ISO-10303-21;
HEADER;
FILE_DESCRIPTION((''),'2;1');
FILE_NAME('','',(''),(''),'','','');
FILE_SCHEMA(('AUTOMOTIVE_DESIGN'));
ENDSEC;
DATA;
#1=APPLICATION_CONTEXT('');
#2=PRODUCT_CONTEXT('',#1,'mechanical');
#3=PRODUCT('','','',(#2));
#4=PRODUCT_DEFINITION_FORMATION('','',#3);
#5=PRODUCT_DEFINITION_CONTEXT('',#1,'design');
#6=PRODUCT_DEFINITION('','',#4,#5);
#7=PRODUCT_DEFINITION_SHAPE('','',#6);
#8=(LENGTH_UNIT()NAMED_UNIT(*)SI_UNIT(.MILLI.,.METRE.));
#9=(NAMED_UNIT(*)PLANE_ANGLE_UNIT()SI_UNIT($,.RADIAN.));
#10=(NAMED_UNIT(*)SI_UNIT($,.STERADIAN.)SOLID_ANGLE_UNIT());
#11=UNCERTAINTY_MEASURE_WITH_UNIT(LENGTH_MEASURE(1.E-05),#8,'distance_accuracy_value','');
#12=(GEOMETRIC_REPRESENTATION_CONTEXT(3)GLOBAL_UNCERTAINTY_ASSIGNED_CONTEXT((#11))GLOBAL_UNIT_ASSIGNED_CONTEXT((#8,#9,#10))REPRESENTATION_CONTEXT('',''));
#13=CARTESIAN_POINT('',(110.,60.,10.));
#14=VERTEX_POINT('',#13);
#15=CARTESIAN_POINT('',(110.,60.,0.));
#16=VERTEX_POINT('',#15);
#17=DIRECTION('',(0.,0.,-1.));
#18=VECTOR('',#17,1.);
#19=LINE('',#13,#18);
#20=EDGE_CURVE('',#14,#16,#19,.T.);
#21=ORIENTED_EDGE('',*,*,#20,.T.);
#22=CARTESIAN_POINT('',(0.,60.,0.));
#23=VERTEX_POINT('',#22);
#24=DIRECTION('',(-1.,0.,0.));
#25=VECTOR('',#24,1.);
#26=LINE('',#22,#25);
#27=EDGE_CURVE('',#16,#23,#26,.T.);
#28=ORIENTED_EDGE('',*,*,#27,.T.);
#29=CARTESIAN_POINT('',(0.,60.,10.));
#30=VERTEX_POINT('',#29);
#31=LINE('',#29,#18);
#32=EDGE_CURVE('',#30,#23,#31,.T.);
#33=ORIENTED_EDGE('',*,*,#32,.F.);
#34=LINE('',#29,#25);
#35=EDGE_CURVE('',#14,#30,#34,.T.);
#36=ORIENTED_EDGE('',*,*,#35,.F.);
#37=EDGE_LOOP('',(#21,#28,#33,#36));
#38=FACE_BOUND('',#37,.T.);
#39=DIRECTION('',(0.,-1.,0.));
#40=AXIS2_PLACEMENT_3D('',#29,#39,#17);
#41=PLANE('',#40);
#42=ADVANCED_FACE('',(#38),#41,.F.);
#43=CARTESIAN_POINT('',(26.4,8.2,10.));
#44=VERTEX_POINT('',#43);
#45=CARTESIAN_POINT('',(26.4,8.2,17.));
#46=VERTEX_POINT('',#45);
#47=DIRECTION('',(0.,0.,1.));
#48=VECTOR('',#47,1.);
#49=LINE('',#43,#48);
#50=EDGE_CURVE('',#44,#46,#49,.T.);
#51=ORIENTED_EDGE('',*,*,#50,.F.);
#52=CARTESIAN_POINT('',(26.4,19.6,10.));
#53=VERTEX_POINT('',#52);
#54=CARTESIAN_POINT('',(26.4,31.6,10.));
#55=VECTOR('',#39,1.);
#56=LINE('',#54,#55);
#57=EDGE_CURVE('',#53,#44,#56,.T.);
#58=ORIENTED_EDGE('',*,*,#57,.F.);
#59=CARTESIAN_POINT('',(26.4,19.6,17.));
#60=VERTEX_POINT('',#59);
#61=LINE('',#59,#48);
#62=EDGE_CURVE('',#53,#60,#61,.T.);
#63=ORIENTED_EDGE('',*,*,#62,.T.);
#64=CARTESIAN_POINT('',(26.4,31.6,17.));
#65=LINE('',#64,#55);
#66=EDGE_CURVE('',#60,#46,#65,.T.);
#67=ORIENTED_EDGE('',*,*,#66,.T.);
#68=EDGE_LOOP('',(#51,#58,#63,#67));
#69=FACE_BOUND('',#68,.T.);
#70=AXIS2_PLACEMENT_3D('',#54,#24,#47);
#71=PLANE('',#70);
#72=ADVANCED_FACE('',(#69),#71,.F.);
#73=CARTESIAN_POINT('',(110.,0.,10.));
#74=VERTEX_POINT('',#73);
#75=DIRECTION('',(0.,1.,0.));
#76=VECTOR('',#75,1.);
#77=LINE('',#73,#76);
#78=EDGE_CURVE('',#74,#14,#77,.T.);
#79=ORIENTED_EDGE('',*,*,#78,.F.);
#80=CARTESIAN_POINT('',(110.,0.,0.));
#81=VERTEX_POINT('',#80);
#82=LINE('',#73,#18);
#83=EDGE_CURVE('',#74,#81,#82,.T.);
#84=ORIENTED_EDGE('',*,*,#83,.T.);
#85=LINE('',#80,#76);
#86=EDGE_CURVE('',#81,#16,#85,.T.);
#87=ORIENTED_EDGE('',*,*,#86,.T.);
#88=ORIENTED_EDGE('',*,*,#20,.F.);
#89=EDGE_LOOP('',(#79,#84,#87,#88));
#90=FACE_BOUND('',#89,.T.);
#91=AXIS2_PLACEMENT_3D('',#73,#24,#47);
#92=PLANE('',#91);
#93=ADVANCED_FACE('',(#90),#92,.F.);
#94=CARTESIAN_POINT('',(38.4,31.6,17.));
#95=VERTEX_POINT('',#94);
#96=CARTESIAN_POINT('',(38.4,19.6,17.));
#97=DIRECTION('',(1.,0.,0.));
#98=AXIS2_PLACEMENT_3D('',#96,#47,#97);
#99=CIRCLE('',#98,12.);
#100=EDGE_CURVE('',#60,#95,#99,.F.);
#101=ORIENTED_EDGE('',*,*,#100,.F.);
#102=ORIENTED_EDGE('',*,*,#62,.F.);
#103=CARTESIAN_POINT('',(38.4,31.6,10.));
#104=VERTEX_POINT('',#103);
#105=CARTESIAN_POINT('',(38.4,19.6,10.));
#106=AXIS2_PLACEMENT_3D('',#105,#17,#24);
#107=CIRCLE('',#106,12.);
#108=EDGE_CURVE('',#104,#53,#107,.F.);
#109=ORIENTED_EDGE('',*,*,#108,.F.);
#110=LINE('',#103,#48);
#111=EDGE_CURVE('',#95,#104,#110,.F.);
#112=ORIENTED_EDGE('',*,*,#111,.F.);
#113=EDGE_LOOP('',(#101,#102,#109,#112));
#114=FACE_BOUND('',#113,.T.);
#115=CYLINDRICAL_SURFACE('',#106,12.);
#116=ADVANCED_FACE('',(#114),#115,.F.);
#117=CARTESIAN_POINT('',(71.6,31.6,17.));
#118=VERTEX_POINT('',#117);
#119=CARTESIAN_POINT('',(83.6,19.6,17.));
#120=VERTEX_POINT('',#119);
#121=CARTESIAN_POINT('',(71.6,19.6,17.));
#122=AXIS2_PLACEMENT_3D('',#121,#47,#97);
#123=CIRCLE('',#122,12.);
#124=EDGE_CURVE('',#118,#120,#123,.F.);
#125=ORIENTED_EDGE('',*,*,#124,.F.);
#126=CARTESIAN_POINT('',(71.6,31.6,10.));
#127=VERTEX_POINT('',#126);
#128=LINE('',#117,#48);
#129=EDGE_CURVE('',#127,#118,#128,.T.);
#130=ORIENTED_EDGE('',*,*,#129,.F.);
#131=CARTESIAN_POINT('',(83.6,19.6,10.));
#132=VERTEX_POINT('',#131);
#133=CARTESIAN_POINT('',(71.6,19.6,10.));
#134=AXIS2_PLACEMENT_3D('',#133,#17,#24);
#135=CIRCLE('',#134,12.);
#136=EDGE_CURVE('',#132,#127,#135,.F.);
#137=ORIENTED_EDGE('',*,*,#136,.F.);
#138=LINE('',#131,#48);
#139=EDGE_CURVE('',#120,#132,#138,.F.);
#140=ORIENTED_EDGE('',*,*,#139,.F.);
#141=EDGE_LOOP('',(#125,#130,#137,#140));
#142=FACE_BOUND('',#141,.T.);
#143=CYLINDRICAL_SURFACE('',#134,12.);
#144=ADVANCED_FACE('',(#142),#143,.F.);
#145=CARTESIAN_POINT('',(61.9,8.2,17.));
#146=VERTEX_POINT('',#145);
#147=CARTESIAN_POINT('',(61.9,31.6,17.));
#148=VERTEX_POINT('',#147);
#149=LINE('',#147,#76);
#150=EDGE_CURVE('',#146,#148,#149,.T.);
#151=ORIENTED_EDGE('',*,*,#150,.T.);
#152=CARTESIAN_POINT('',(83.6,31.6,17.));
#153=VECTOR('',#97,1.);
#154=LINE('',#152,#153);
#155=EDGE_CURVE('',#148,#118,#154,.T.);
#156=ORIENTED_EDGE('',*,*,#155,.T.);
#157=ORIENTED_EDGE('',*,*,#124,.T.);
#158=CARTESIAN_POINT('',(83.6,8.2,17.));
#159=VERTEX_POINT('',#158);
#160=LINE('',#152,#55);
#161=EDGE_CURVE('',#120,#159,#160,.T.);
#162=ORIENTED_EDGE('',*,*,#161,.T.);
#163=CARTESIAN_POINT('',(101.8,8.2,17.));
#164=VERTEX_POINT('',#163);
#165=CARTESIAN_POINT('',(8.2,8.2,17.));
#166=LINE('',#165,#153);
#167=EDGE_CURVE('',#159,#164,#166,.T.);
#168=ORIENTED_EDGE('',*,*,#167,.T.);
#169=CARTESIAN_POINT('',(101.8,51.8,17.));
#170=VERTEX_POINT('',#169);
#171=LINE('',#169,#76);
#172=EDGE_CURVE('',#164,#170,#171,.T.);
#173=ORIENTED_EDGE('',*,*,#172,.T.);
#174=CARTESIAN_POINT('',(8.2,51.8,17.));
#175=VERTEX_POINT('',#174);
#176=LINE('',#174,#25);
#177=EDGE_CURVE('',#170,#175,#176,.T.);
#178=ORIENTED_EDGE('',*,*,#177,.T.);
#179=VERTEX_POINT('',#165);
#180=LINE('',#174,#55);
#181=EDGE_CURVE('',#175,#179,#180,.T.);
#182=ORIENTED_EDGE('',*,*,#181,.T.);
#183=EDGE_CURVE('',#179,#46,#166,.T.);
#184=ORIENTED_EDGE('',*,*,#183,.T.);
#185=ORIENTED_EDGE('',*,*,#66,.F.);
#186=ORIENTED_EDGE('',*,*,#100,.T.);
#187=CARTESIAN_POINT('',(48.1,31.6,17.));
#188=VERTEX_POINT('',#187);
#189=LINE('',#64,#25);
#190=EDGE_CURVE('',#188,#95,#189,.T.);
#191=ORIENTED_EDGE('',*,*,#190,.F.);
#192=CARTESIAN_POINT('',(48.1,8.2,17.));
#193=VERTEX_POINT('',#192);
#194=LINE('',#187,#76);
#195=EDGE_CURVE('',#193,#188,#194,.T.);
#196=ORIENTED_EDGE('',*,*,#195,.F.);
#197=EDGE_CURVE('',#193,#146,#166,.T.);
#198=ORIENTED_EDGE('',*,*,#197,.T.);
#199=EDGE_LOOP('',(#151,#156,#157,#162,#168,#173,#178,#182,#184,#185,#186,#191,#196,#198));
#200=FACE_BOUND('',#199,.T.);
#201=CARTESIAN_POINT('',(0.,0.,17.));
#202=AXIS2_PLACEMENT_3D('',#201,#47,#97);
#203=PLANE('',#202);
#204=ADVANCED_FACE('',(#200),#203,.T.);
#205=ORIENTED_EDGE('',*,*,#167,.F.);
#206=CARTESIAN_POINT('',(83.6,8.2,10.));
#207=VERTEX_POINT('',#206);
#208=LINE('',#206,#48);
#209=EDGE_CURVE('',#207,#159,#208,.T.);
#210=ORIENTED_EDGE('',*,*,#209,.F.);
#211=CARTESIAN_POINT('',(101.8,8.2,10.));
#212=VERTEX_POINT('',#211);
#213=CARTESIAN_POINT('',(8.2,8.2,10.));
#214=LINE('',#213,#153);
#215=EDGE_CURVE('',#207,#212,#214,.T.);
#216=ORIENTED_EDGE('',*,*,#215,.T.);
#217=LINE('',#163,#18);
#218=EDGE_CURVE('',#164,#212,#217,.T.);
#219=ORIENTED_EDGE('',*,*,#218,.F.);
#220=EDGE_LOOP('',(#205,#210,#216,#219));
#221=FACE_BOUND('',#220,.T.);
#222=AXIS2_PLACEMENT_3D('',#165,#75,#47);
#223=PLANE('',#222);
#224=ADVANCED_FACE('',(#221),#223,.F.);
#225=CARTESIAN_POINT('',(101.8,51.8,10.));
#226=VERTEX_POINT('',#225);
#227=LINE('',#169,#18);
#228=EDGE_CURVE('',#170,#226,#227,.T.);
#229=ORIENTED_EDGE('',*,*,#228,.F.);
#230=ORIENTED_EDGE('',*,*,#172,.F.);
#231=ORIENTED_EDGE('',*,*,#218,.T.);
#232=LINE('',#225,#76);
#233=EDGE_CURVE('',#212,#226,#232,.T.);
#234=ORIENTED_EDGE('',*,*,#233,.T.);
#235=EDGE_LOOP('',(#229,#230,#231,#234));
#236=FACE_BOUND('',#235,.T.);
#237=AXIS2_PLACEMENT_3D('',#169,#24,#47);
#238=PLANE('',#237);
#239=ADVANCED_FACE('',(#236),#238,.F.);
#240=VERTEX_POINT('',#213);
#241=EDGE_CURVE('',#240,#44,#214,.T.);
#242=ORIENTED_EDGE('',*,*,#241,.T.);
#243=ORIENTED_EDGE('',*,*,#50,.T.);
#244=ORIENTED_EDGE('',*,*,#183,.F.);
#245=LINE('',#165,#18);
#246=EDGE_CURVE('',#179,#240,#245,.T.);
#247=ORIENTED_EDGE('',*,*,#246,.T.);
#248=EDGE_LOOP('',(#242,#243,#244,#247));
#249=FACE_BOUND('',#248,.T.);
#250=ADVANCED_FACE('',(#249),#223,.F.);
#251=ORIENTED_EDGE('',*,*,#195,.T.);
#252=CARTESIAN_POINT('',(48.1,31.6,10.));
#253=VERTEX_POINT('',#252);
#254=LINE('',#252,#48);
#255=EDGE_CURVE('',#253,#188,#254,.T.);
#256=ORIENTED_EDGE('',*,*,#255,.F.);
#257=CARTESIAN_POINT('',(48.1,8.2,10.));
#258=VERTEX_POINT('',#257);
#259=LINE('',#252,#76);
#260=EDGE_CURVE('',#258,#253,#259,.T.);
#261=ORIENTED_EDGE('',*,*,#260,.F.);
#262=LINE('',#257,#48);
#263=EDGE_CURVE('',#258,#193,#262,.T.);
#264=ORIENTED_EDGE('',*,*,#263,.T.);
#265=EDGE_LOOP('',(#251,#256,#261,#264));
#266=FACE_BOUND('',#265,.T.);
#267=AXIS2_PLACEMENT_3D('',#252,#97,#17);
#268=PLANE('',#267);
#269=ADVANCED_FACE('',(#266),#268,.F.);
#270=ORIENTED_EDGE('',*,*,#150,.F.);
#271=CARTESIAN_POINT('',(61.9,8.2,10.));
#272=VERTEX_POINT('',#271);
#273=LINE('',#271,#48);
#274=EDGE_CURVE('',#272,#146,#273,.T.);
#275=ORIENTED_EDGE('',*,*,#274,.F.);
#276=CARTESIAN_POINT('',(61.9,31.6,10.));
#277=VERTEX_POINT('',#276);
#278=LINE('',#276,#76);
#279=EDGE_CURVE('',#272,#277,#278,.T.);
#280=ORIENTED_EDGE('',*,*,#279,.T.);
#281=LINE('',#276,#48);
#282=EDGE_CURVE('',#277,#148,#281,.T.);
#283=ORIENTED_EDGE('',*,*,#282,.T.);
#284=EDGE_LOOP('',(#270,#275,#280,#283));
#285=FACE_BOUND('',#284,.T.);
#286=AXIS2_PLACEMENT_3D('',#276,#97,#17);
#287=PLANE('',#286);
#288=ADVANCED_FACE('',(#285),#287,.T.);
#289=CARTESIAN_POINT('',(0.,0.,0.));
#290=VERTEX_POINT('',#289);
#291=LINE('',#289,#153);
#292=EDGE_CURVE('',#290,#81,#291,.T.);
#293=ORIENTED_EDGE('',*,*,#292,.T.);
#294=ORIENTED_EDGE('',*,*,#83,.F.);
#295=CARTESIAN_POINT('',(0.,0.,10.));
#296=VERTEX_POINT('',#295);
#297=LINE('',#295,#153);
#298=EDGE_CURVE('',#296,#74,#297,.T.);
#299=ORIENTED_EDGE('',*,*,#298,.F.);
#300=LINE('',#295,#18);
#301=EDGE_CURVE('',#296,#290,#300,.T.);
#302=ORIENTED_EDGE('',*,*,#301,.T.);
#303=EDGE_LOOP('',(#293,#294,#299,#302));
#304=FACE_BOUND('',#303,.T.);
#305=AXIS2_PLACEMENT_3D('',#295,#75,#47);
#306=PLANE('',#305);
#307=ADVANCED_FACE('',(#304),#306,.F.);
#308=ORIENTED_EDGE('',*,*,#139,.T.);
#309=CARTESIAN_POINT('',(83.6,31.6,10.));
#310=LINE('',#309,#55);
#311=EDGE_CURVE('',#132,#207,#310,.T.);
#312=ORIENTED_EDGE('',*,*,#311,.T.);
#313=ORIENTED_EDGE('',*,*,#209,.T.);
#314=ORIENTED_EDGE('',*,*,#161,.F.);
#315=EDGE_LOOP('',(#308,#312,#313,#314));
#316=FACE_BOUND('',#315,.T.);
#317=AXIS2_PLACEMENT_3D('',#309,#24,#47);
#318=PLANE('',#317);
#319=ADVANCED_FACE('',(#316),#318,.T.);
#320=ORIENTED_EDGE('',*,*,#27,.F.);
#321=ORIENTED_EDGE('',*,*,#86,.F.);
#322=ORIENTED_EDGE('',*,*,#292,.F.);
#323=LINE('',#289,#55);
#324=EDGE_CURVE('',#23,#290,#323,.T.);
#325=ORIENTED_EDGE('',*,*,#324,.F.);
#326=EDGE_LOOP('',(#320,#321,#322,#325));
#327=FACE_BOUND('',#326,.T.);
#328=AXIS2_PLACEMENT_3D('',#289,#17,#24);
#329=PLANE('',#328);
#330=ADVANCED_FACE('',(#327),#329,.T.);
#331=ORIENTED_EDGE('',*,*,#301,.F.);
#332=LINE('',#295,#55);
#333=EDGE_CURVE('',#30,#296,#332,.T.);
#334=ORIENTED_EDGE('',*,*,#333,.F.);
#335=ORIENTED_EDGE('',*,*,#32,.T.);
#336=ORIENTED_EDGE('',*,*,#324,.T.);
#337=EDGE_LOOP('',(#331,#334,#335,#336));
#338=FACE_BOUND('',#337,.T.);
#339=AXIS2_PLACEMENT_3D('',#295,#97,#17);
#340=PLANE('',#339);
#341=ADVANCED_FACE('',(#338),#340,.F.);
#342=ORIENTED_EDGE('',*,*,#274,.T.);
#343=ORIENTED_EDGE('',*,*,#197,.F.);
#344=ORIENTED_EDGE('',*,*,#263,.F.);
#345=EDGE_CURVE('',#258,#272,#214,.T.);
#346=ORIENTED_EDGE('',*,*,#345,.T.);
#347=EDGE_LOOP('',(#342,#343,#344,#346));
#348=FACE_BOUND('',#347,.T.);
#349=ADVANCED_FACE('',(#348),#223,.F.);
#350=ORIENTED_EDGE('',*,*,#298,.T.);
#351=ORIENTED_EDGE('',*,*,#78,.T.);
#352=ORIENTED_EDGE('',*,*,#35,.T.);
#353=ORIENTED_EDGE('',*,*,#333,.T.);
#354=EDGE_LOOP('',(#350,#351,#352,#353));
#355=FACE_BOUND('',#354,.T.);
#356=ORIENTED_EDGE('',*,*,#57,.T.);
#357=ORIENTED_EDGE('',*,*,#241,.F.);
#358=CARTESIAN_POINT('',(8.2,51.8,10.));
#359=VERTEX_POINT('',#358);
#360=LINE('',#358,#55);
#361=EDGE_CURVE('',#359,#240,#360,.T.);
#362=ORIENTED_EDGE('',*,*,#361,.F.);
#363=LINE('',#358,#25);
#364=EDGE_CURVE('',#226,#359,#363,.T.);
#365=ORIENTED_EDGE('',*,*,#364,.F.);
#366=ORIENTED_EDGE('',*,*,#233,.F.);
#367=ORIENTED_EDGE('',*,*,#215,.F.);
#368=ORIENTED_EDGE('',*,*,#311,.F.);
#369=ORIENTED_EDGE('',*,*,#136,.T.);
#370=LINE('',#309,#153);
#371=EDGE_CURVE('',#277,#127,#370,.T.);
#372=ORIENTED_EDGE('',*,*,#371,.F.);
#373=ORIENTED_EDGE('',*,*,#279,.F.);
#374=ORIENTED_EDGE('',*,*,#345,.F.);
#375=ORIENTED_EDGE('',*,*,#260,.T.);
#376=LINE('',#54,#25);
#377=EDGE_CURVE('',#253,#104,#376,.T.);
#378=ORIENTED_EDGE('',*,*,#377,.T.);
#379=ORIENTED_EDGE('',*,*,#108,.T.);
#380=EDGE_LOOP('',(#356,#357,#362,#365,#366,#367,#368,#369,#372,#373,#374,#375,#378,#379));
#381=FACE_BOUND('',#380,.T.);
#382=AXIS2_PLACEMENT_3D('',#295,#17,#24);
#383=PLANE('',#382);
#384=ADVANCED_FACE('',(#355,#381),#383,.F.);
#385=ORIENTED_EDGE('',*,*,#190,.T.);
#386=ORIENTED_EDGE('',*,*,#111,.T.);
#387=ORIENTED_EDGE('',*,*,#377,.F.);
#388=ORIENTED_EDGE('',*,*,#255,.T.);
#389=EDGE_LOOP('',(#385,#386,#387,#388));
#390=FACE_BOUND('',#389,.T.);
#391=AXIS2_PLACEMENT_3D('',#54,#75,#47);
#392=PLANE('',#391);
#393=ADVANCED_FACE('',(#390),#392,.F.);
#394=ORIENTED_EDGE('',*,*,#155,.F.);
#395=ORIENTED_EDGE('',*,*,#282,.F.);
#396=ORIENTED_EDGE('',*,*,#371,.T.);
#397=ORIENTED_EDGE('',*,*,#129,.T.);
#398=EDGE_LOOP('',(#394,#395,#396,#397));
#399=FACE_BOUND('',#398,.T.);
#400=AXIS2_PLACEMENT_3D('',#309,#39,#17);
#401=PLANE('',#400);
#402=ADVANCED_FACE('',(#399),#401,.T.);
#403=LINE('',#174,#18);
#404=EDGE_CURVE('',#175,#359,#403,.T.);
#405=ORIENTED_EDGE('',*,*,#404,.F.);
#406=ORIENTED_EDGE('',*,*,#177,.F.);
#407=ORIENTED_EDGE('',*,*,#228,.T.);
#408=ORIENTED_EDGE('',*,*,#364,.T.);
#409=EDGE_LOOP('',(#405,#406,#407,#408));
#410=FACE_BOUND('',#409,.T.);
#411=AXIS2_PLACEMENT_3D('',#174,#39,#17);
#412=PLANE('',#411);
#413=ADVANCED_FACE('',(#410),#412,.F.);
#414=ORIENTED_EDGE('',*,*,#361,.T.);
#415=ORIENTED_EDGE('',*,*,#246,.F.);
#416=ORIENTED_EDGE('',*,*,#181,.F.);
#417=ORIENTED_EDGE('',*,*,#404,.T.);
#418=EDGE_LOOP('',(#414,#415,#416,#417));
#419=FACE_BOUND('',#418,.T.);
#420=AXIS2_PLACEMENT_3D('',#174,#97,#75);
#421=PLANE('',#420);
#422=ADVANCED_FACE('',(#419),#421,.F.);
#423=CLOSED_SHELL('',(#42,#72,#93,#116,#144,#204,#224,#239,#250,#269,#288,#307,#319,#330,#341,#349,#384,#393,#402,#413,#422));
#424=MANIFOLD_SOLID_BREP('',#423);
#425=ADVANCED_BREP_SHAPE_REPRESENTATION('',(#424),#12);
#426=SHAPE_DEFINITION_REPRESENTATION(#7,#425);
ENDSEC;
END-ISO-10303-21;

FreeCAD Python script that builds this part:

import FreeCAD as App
import Part
import Sketcher
from FreeCAD import Vector
Q = App.Units.Quantity


def edges_at(feature, points):
    """Names of the edges that pass closest to the given points."""
    edges = feature.Shape.Edges
    near = lambda p: min(range(len(edges)), key=lambda i: edges[i].distToShape(Part.Vertex(*p))[0])
    return sorted({f"Edge{near(p) + 1}" for p in points})


def add_polygon(sketch, points):
    """Adds a closed chain of lines whose ends are joined by coincident constraints."""
    first, n = sketch.GeometryCount, len(points)
    for a, b in zip(points, points[1:] + points[:1]):
        sketch.addGeometry(Part.LineSegment(App.Vector(*a, 0), App.Vector(*b, 0)), False)
    for i in range(n):
        sketch.addConstraint(Sketcher.Constraint("Coincident", first + i, 2, first + (i + 1) % n, 1))

doc = App.newDocument("Part")
body = doc.addObject("PartDesign::Body", "Body")

# Sketch on XY plane
sketch1 = body.newObject("Sketcher::SketchObject", "Sketch")
sketch1.AttachmentSupport = (doc.getObject("XY_Plane"), [""])
sketch1.MapMode = "FlatFace"
add_polygon(sketch1, [(0, 60), (0, 0), (110, 0), (110, 60)])  # lines 0-3
sketch1.addConstraint([
    Sketcher.Constraint("Vertical", 0),
    Sketcher.Constraint("Horizontal", 1),
    Sketcher.Constraint("Vertical", 2),
    Sketcher.Constraint("Horizontal", 3),
    Sketcher.Constraint("Coincident", 0, 2, -1, 1),
    Sketcher.Constraint("DistanceX", 1, 1, 1, 2, Q("110 mm")),
    Sketcher.Constraint("DistanceY", 0, 2, 0, 1, Q("60 mm")),
])
pad1 = body.newObject("PartDesign::Pad", "Pad")
pad1.Profile = sketch1
pad1.Length = 10

# Sketch on XY plane
sketch2 = body.newObject("Sketcher::SketchObject", "Sketch001")
sketch2.AttachmentSupport = (doc.getObject("XY_Plane"), [""])
sketch2.MapMode = "FlatFace"
sketch2.AttachmentOffset = App.Placement(Vector(0, 0, 10), App.Rotation())
add_polygon(sketch2, [(8, 52), (8, 8), (102, 8), (102, 52)])  # lines 0-3
sketch2.addConstraint([
    Sketcher.Constraint("Vertical", 0),
    Sketcher.Constraint("Horizontal", 1),
    Sketcher.Constraint("Vertical", 2),
    Sketcher.Constraint("Horizontal", 3),
    Sketcher.Constraint("DistanceX", 1, 1, 1, 2, Q("93.6 mm")),
    Sketcher.Constraint("DistanceY", 0, 2, 0, 1, Q("43.6 mm")),
    Sketcher.Constraint("DistanceX", -1, 1, 0, 2, Q("8.2 mm")),
    Sketcher.Constraint("DistanceY", -1, 1, 0, 2, Q("8.2 mm")),
])
pad2 = body.newObject("PartDesign::Pad", "Pad001")
pad2.Profile = sketch2
pad2.Length = 7

# Sketch on XY plane
sketch3 = body.newObject("Sketcher::SketchObject", "Sketch002")
sketch3.AttachmentSupport = (doc.getObject("XY_Plane"), [""])
sketch3.MapMode = "FlatFace"
sketch3.AttachmentOffset = App.Placement(Vector(0, 0, 17), App.Rotation())
add_polygon(sketch3, [(26, 32), (26, 8), (48, 8), (48, 32)])  # lines 0-3
sketch3.addConstraint([
    Sketcher.Constraint("Vertical", 0),
    Sketcher.Constraint("Horizontal", 1),
    Sketcher.Constraint("Vertical", 2),
    Sketcher.Constraint("Horizontal", 3),
    Sketcher.Constraint("DistanceX", 1, 1, 1, 2, Q("21.7 mm")),
    Sketcher.Constraint("DistanceY", 0, 2, 0, 1, Q("23.4 mm")),
    Sketcher.Constraint("DistanceX", -1, 1, 0, 2, Q("26.4 mm")),
    Sketcher.Constraint("DistanceY", -1, 1, 0, 2, Q("8.2 mm")),
])
pocket1 = body.newObject("PartDesign::Pocket", "Pocket")
pocket1.Profile = sketch3
pocket1.Length = 7
doc.recompute()

fillet = body.newObject("PartDesign::Fillet", "Fillet")
fillet.Base = (pocket1, edges_at(pocket1, [(26.4, 31.6, 13.5)]))
fillet.Radius = 12
doc.recompute()

datumplane = body.newObject("PartDesign::Plane", "DatumPlane")
datumplane.AttachmentSupport = (doc.getObject("YZ_Plane"), [""])
datumplane.MapMode = "FlatFace"
datumplane.AttachmentOffset = App.Placement(Vector(0, 0, 55), App.Rotation())
mirrored = body.newObject("PartDesign::Mirrored", "Mirrored")
mirrored.Originals = [pocket1]
mirrored.MirrorPlane = (datumplane, [""])
body.Tip = mirrored
doc.recompute()

fillet2 = body.newObject("PartDesign::Fillet", "Fillet001")
fillet2.Base = (mirrored, edges_at(mirrored, [(83.6, 31.6, 13.5)]))
fillet2.Radius = 12

doc.recompute()
